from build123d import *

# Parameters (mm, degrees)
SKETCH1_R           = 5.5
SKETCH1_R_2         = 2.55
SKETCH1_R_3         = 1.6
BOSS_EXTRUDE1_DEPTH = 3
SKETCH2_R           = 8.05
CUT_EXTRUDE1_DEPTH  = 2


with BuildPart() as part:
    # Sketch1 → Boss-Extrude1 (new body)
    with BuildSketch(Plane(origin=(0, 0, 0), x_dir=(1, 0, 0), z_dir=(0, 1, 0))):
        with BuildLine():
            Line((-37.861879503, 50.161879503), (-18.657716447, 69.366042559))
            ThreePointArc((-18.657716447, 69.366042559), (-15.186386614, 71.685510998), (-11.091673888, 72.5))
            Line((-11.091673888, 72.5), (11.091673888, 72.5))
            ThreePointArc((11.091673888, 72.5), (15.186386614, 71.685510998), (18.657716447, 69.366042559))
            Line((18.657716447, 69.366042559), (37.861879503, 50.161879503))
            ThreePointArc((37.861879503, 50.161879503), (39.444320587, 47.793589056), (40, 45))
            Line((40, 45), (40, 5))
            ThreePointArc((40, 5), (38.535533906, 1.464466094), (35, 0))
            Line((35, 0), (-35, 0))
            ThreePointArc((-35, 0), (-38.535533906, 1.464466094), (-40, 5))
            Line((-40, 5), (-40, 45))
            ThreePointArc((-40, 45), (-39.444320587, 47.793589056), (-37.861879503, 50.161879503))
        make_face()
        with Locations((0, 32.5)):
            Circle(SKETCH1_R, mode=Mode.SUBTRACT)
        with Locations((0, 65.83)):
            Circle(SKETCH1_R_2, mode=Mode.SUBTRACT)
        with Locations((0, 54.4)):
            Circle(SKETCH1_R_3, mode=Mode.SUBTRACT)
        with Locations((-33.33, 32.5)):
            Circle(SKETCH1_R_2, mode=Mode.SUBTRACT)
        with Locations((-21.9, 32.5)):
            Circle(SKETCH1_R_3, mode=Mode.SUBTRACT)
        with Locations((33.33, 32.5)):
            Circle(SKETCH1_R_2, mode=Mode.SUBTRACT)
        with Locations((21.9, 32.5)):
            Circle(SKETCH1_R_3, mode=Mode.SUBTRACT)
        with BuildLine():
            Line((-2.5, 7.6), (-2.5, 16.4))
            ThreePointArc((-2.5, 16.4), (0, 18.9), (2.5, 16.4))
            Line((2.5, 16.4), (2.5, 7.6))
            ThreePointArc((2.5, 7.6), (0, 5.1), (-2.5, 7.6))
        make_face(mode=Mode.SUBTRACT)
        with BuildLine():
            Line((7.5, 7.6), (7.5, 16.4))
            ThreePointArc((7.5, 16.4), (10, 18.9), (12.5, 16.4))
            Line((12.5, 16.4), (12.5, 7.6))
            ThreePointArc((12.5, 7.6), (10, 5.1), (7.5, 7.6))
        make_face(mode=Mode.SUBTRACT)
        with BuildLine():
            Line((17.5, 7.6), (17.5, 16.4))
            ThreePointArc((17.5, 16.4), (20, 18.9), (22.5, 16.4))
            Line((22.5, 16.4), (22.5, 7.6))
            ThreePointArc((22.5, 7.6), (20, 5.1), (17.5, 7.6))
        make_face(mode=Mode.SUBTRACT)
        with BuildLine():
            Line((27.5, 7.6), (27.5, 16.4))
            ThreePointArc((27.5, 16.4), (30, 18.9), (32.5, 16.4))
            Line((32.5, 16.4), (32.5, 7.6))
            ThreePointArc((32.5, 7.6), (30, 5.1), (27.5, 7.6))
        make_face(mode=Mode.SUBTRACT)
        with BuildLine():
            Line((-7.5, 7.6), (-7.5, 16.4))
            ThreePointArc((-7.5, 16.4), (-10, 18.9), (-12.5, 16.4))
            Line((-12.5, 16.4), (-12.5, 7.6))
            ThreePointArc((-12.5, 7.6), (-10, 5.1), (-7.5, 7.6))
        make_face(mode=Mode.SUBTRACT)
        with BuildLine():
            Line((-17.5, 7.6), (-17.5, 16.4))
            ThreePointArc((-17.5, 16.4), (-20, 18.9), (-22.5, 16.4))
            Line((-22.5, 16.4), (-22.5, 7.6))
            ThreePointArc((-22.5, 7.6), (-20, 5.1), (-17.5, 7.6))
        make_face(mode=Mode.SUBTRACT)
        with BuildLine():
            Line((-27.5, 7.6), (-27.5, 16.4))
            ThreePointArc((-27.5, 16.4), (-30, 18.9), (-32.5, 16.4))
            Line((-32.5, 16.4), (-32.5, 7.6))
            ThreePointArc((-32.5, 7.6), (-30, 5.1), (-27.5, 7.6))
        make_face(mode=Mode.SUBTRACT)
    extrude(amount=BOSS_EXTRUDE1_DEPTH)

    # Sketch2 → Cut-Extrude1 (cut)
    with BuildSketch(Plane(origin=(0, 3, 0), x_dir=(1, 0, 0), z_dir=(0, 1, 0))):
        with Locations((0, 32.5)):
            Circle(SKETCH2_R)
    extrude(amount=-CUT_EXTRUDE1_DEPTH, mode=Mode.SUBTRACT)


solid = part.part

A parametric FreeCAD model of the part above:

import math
import FreeCAD as App
import Part
import Sketcher

V = App.Vector
Q = App.Units.Quantity

doc = App.newDocument("Part")
params = doc.addObject("Spreadsheet::Sheet", "Params")
for row, (alias, value) in enumerate([
    ("sketch1_diameter", "11 mm"),
    ("sketch1_radius", "5 mm"),
    ("sketch1_diameter2", "5.1 mm"),
    ("sketch1_diameter3", "3.2 mm"),
    ("sketch1_radius2", "7.3 mm"),
    ("pad1_length", "3 mm"),
    ("sketch2_diameter", "16.1 mm"),
    ("pocket1_length", "2 mm"),
], start=1):
    params.set(f"A{row}", alias)
    params.set(f"B{row}", "=" + value)
    params.setAlias(f"B{row}", alias)

body = doc.addObject("PartDesign::Body", "Body")

sketch1 = doc.addObject("Sketcher::SketchObject", "Sketch")
body.addObject(sketch1)
sketch1.AttachmentSupport = (doc.XZ_Plane, [""])
sketch1.MapMode = "FlatFace"
sketch1.addGeometry([
    Part.LineSegment(V(-18.7, -69.4, 0), V(-37.9, -50.2, 0)),
    Part.ArcOfCircle(Part.Circle(V(-32.7, -45, 0), V(0, 0, 1), 7.3), math.radians(-180), math.radians(-135)),
    Part.LineSegment(V(-40, -45, 0), V(-40, -5, 0)),
    Part.ArcOfCircle(Part.Circle(V(-35, -5, 0), V(0, 0, 1), 5), math.radians(90), math.radians(180)),
    Part.LineSegment(V(-35, 0, 0), V(35, 0, 0)),
    Part.ArcOfCircle(Part.Circle(V(35, -5, 0), V(0, 0, 1), 5), math.radians(0), math.radians(90)),
    Part.LineSegment(V(40, -5, 0), V(40, -45, 0)),
    Part.ArcOfCircle(Part.Circle(V(32.7, -45, 0), V(0, 0, 1), 7.3), math.radians(-45), math.radians(0)),
    Part.LineSegment(V(37.9, -50.2, 0), V(18.7, -69.4, 0)),
    Part.ArcOfCircle(Part.Circle(V(11.1, -61.8, 0), V(0, 0, 1), 10.7), math.radians(-90), math.radians(-45)),
    Part.LineSegment(V(11.1, -72.5, 0), V(-11.1, -72.5, 0)),
    Part.ArcOfCircle(Part.Circle(V(-11.1, -61.8, 0), V(0, 0, 1), 10.7), math.radians(-135), math.radians(-90)),
    Part.LineSegment(V(27.5, -7.6, 0), V(27.5, -16.4, 0)),
    Part.ArcOfCircle(Part.Circle(V(30, -16.4, 0), V(0, 0, 1), 2.5), math.radians(180), math.radians(360)),
    Part.LineSegment(V(32.5, -16.4, 0), V(32.5, -7.6, 0)),
    Part.ArcOfCircle(Part.Circle(V(30, -7.6, 0), V(0, 0, 1), 2.5), math.radians(0), math.radians(180)),
    Part.LineSegment(V(17.5, -7.6, 0), V(17.5, -16.4, 0)),
    Part.ArcOfCircle(Part.Circle(V(20, -16.4, 0), V(0, 0, 1), 2.5), math.radians(180), math.radians(360)),
    Part.LineSegment(V(22.5, -16.4, 0), V(22.5, -7.6, 0)),
    Part.ArcOfCircle(Part.Circle(V(20, -7.6, 0), V(0, 0, 1), 2.5), math.radians(0), math.radians(180)),
    Part.LineSegment(V(7.5, -7.6, 0), V(7.5, -16.4, 0)),
    Part.ArcOfCircle(Part.Circle(V(10, -16.4, 0), V(0, 0, 1), 2.5), math.radians(180), math.radians(360)),
    Part.LineSegment(V(12.5, -16.4, 0), V(12.5, -7.6, 0)),
    Part.ArcOfCircle(Part.Circle(V(10, -7.6, 0), V(0, 0, 1), 2.5), math.radians(0), math.radians(180)),
    Part.Circle(V(33.3, -32.5, 0), V(0, 0, 1), 2.5),
    Part.Circle(V(21.9, -32.5, 0), V(0, 0, 1), 1.6),
    Part.LineSegment(V(-2.5, -7.6, 0), V(-2.5, -16.4, 0)),
    Part.ArcOfCircle(Part.Circle(V(0, -16.4, 0), V(0, 0, 1), 2.5), math.radians(180), math.radians(360)),
    Part.LineSegment(V(2.5, -16.4, 0), V(2.5, -7.6, 0)),
    Part.ArcOfCircle(Part.Circle(V(0, -7.6, 0), V(0, 0, 1), 2.5), math.radians(0), math.radians(180)),
    Part.ArcOfCircle(Part.Circle(V(-10, -7.6, 0), V(0, 0, 1), 2.5), math.radians(0), math.radians(180)),
    Part.LineSegment(V(-12.5, -7.6, 0), V(-12.5, -16.4, 0)),
    Part.ArcOfCircle(Part.Circle(V(-10, -16.4, 0), V(0, 0, 1), 2.5), math.radians(180), math.radians(360)),
    Part.LineSegment(V(-7.5, -16.4, 0), V(-7.5, -7.6, 0)),
    Part.ArcOfCircle(Part.Circle(V(-20, -7.6, 0), V(0, 0, 1), 2.5), math.radians(0), math.radians(180)),
    Part.LineSegment(V(-22.5, -7.6, 0), V(-22.5, -16.4, 0)),
    Part.ArcOfCircle(Part.Circle(V(-20, -16.4, 0), V(0, 0, 1), 2.5), math.radians(180), math.radians(360)),
    Part.LineSegment(V(-17.5, -16.4, 0), V(-17.5, -7.6, 0)),
    Part.ArcOfCircle(Part.Circle(V(-30, -7.6, 0), V(0, 0, 1), 2.5), math.radians(0), math.radians(180)),
    Part.LineSegment(V(-32.5, -7.6, 0), V(-32.5, -16.4, 0)),
    Part.ArcOfCircle(Part.Circle(V(-30, -16.4, 0), V(0, 0, 1), 2.5), math.radians(180), math.radians(360)),
    Part.LineSegment(V(-27.5, -16.4, 0), V(-27.5, -7.6, 0)),
    Part.Circle(V(0, -32.5, 0), V(0, 0, 1), 5.5),
    Part.Circle(V(-21.9, -32.5, 0), V(0, 0, 1), 1.6),
    Part.Circle(V(-33.3, -32.5, 0), V(0, 0, 1), 2.5),
    Part.Circle(V(0, -54.4, 0), V(0, 0, 1), 1.6),
    Part.Circle(V(0, -65.8, 0), V(0, 0, 1), 2.5),
], False)
sketch1.addConstraint([
    Sketcher.Constraint("Tangent", 0, 2, 1, 2),
    Sketcher.Constraint("Tangent", 1, 1, 2, 1),
    Sketcher.Constraint("Tangent", 2, 2, 3, 2),
    Sketcher.Constraint("Tangent", 3, 1, 4, 1),
    Sketcher.Constraint("Tangent", 4, 2, 5, 2),
    Sketcher.Constraint("Tangent", 5, 1, 6, 1),
    Sketcher.Constraint("Tangent", 6, 2, 7, 2),
    Sketcher.Constraint("Tangent", 7, 1, 8, 1),
    Sketcher.Constraint("Tangent", 8, 2, 9, 2),
    Sketcher.Constraint("Tangent", 9, 1, 10, 1),
    Sketcher.Constraint("Tangent", 10, 2, 11, 2),
    Sketcher.Constraint("Tangent", 11, 1, 0, 1),
    Sketcher.Constraint("Tangent", 12, 2, 13, 1),
    Sketcher.Constraint("Tangent", 13, 2, 14, 1),
    Sketcher.Constraint("Tangent", 14, 2, 15, 1),
    Sketcher.Constraint("Tangent", 15, 2, 12, 1),
    Sketcher.Constraint("Tangent", 16, 2, 17, 1),
    Sketcher.Constraint("Tangent", 17, 2, 18, 1),
    Sketcher.Constraint("Tangent", 18, 2, 19, 1),
    Sketcher.Constraint("Tangent", 19, 2, 16, 1),
    Sketcher.Constraint("Tangent", 20, 2, 21, 1),
    Sketcher.Constraint("Tangent", 21, 2, 22, 1),
    Sketcher.Constraint("Tangent", 22, 2, 23, 1),
    Sketcher.Constraint("Tangent", 23, 2, 20, 1),
    Sketcher.Constraint("Tangent", 26, 2, 27, 1),
    Sketcher.Constraint("Tangent", 27, 2, 28, 1),
    Sketcher.Constraint("Tangent", 28, 2, 29, 1),
    Sketcher.Constraint("Tangent", 29, 2, 26, 1),
    Sketcher.Constraint("Tangent", 30, 2, 31, 1),
    Sketcher.Constraint("Tangent", 31, 2, 32, 1),
    Sketcher.Constraint("Tangent", 32, 2, 33, 1),
    Sketcher.Constraint("Tangent", 33, 2, 30, 1),
    Sketcher.Constraint("Tangent", 34, 2, 35, 1),
    Sketcher.Constraint("Tangent", 35, 2, 36, 1),
    Sketcher.Constraint("Tangent", 36, 2, 37, 1),
    Sketcher.Constraint("Tangent", 37, 2, 34, 1),
    Sketcher.Constraint("Tangent", 38, 2, 39, 1),
    Sketcher.Constraint("Tangent", 39, 2, 40, 1),
    Sketcher.Constraint("Tangent", 40, 2, 41, 1),
    Sketcher.Constraint("Tangent", 41, 2, 38, 1),
    Sketcher.Constraint("Vertical", 2),
    Sketcher.Constraint("Horizontal", 4),
    Sketcher.Constraint("Vertical", 6),
    Sketcher.Constraint("Horizontal", 10),
    Sketcher.Constraint("Vertical", 12),
    Sketcher.Constraint("Vertical", 14),
    Sketcher.Constraint("Vertical", 16),
    Sketcher.Constraint("Vertical", 18),
    Sketcher.Constraint("Vertical", 20),
    Sketcher.Constraint("Vertical", 22),
    Sketcher.Constraint("Vertical", 26),
    Sketcher.Constraint("Vertical", 28),
    Sketcher.Constraint("Vertical", 31),
    Sketcher.Constraint("Vertical", 33),
    Sketcher.Constraint("Vertical", 35),
    Sketcher.Constraint("Vertical", 37),
    Sketcher.Constraint("Vertical", 39),
    Sketcher.Constraint("Vertical", 41),
    Sketcher.Constraint("Equal", 3, 5),
    Sketcher.Constraint("Equal", 1, 7),
    Sketcher.Constraint("Equal", 9, 11),
    Sketcher.Constraint("Equal", 15, 17),
    Sketcher.Constraint("Equal", 19, 21),
    Sketcher.Constraint("Equal", 23, 27),
    Sketcher.Constraint("Equal", 29, 30),
    Sketcher.Constraint("Equal", 32, 34),
    Sketcher.Constraint("Equal", 36, 38),
    Sketcher.Constraint("Equal", 25, 43),
    Sketcher.Constraint("Equal", 24, 44),
    Sketcher.Constraint("Equal", 43, 45),
    Sketcher.Constraint("Equal", 44, 46),
    Sketcher.Constraint("Symmetric", 3, 1, 4, 2, -1, 1),
    Sketcher.Constraint("Symmetric", 23, 3, 30, 3, -2),
    Sketcher.Constraint("Symmetric", 19, 3, 34, 3, -2),
    Sketcher.Constraint("Symmetric", 15, 3, 38, 3, -2),
    Sketcher.Constraint("Symmetric", 25, 3, 43, 3, -2),
    Sketcher.Constraint("Symmetric", 24, 3, 44, 3, -2),
    Sketcher.Constraint("Symmetric", 0, 2, 7, 1, -2),
    Sketcher.Constraint("PointOnObject", 27, 3, -2),
    Sketcher.Constraint("PointOnObject", 42, 3, -2),
    Sketcher.Constraint("PointOnObject", 45, 3, -2),
    Sketcher.Constraint("PointOnObject", 46, 3, -2),
    Sketcher.Constraint("Perpendicular", 0, 8),
    Sketcher.Constraint("Horizontal", 13, 3, 17, 3),
    Sketcher.Constraint("Horizontal", 15, 3, 19, 3),
    Sketcher.Constraint("Horizontal", 17, 3, 21, 3),
    Sketcher.Constraint("Horizontal", 19, 3, 23, 3),
    Sketcher.Constraint("Horizontal", 24, 3, 25, 3),
    Sketcher.Constraint("Horizontal", 21, 3, 27, 3),
    Sketcher.Constraint("Horizontal", 23, 3, 29, 3),
    Sketcher.Constraint("Horizontal", 27, 3, 32, 3),
    Sketcher.Constraint("Horizontal", 32, 3, 36, 3),
    Sketcher.Constraint("Horizontal", 36, 3, 40, 3),
    Sketcher.Constraint("Horizontal", 25, 3, 42, 3),
    Sketcher.Constraint("Diameter", 42, Q("11 mm")),
    Sketcher.Constraint("Radius", 3, Q("5 mm")),
    Sketcher.Constraint("Diameter", 24, Q("5.1 mm")),
    Sketcher.Constraint("Diameter", 25, Q("3.2 mm")),
    Sketcher.Constraint("Radius", 1, Q("7.3 mm")),
    Sketcher.Constraint("Radius", 9, Q("10.7 mm")),
    Sketcher.Constraint("Radius", 13, Q("2.5 mm")),
    Sketcher.Constraint("DistanceX", 4, 1, 4, 2, Q("70 mm")),
    Sketcher.Constraint("DistanceY", 2, 1, 2, 2, Q("40 mm")),
    Sketcher.Constraint("DistanceY", 12, 2, 12, 1, Q("8.8 mm")),
    Sketcher.Constraint("DistanceX", -1, 1, 13, 3, Q("30 mm")),
    Sketcher.Constraint("DistanceX", -1, 1, 17, 3, Q("20 mm")),
    Sketcher.Constraint("DistanceX", -1, 1, 21, 3, Q("10 mm")),
    Sketcher.Constraint("DistanceY", 9, 3, -1, 1, Q("61.8 mm")),
    Sketcher.Constraint("DistanceY", 13, 3, -1, 1, Q("16.4 mm")),
    Sketcher.Constraint("DistanceY", 24, 3, -1, 1, Q("32.5 mm")),
    Sketcher.Constraint("DistanceX", -1, 1, 25, 3, Q("21.9 mm")),
    Sketcher.Constraint("DistanceY", 45, 3, -1, 1, Q("54.4 mm")),
    Sketcher.Constraint("DistanceX", -1, 1, 24, 3, Q("33.33 mm")),
    Sketcher.Constraint("DistanceY", 46, 3, -1, 1, Q("65.83 mm")),
])
sketch1.setExpression("Constraints[94]", "Params.sketch1_diameter")
sketch1.setExpression("Constraints[95]", "Params.sketch1_radius")
sketch1.setExpression("Constraints[96]", "Params.sketch1_diameter2")
sketch1.setExpression("Constraints[97]", "Params.sketch1_diameter3")
sketch1.setExpression("Constraints[98]", "Params.sketch1_radius2")
pad1 = doc.addObject("PartDesign::Pad", "Pad")
body.addObject(pad1)
pad1.Profile = sketch1
pad1.setExpression("Length", "Params.pad1_length")
pad1.Reversed = True

sketch2 = doc.addObject("Sketcher::SketchObject", "Sketch001")
body.addObject(sketch2)
sketch2.AttachmentSupport = (doc.XZ_Plane, [""])
sketch2.MapMode = "FlatFace"
sketch2.AttachmentOffset = App.Placement(V(0, 0, -3), App.Rotation())
sketch2.addGeometry(Part.Circle(V(0, -32, 0), V(0, 0, 1), 8), False)
sketch2.addConstraint([
    Sketcher.Constraint("PointOnObject", 0, 3, -2),
    Sketcher.Constraint("Diameter", 0, Q("16.1 mm")),
    Sketcher.Constraint("DistanceY", 0, 3, -1, 1, Q("32.5 mm")),
])
sketch2.setExpression("Constraints[1]", "Params.sketch2_diameter")
pocket1 = doc.addObject("PartDesign::Pocket", "Pocket")
body.addObject(pocket1)
pocket1.Profile = sketch2
pocket1.setExpression("Length", "Params.pocket1_length")
pocket1.Reversed = True

doc.recompute()
